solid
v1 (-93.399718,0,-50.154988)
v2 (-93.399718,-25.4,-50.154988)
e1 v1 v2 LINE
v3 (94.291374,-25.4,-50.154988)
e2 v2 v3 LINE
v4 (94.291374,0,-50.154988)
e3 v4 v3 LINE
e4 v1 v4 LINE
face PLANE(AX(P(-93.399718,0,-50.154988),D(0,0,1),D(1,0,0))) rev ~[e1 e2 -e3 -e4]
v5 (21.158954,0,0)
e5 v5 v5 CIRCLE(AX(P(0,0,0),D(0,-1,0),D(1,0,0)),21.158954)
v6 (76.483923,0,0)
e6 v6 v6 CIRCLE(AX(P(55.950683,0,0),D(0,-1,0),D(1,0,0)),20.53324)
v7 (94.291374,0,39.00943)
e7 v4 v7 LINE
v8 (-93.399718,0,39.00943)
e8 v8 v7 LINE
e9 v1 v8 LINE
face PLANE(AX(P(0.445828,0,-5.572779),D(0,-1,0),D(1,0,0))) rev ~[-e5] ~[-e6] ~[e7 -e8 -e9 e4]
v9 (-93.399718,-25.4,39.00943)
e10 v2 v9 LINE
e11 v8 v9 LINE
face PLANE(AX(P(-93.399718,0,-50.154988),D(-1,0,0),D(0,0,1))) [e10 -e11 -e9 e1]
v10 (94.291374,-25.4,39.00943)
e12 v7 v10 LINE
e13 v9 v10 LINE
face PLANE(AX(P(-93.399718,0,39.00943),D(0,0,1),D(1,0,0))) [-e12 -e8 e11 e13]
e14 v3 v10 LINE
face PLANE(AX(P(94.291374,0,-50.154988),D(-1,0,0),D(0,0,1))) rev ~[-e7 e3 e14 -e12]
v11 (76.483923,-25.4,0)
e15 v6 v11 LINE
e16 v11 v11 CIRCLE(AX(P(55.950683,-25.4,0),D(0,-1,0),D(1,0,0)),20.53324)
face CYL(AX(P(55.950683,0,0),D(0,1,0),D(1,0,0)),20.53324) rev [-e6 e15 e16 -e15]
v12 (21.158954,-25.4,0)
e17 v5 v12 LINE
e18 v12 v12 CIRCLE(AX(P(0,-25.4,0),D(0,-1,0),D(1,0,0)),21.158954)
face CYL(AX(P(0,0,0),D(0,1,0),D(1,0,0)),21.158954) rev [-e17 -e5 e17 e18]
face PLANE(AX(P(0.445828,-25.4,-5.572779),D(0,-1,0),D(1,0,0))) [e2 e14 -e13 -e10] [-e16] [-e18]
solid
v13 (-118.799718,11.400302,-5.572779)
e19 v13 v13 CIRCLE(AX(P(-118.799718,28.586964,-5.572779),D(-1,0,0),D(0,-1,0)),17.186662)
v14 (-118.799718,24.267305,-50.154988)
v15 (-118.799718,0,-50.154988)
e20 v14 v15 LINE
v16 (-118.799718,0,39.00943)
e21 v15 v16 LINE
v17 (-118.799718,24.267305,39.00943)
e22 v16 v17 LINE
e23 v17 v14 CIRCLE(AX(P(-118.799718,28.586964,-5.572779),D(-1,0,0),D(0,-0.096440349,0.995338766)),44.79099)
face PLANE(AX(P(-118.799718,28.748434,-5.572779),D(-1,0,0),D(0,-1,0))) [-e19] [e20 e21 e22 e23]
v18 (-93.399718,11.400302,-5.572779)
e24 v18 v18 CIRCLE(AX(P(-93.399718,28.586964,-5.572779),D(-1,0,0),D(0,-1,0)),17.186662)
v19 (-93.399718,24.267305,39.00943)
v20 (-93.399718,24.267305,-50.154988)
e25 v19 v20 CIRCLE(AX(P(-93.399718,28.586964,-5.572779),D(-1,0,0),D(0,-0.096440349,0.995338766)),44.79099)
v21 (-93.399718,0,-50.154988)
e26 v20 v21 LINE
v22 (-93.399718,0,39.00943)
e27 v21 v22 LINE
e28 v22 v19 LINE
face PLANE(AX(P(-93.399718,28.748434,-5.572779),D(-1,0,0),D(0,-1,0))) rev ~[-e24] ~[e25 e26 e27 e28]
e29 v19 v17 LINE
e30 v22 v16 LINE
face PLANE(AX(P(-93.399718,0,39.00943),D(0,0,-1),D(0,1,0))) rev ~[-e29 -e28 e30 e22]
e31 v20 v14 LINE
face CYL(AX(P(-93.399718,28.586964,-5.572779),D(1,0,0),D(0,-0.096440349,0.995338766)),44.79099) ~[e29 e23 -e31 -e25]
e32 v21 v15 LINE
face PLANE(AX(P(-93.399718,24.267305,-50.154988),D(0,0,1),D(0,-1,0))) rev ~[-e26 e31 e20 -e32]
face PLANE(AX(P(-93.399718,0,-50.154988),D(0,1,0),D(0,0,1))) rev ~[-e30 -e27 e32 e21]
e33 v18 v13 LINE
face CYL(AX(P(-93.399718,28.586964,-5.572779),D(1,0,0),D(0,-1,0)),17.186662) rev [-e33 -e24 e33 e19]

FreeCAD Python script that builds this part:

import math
import FreeCAD as App
import Part
import Sketcher
Q = App.Units.Quantity


def add_polygon(sketch, points):
    """Adds a closed chain of lines whose ends are joined by coincident constraints."""
    first, n = sketch.GeometryCount, len(points)
    for a, b in zip(points, points[1:] + points[:1]):
        sketch.addGeometry(Part.LineSegment(App.Vector(*a, 0), App.Vector(*b, 0)), False)
    for i in range(n):
        sketch.addConstraint(Sketcher.Constraint("Coincident", first + i, 2, first + (i + 1) % n, 1))

doc = App.newDocument("Part")
body = doc.addObject("PartDesign::Body", "Body")

sketch1 = body.newObject("Sketcher::SketchObject", "Sketch")
sketch1.AttachmentSupport = (doc.getObject("XZ_Plane"), [""])
sketch1.MapMode = "FlatFace"
add_polygon(sketch1, [(-93, 39), (-93, -50), (94, -50), (94, 39)])
sketch1.addGeometry(Part.Circle(App.Vector(0, 0, 0), App.Vector(0, 0, 1), 21), False)
sketch1.addGeometry(Part.Circle(App.Vector(56, 0, 0), App.Vector(0, 0, 1), 21), False)
sketch1.addConstraint(Sketcher.Constraint("Vertical", 0))
sketch1.addConstraint(Sketcher.Constraint("Horizontal", 1))
sketch1.addConstraint(Sketcher.Constraint("Vertical", 2))
sketch1.addConstraint(Sketcher.Constraint("Horizontal", 3))
sketch1.addConstraint(Sketcher.Constraint("Coincident", 4, 3, -1, 1))
sketch1.addConstraint(Sketcher.Constraint("PointOnObject", 5, 3, -1))
sketch1.addConstraint(Sketcher.Constraint("Diameter", 4, 42.317908))
sketch1.addConstraint(Sketcher.Constraint("Diameter", 5, 41.06648))
sketch1.addConstraint(Sketcher.Constraint("DistanceX", 1, 1, 1, 2, 187.691092))
sketch1.addConstraint(Sketcher.Constraint("DistanceY", 0, 2, 0, 1, 89.164418))
sketch1.addConstraint(Sketcher.Constraint("DistanceX", 0, 2, 5, 3, 149.350401))
sketch1.addConstraint(Sketcher.Constraint("DistanceY", 0, 2, -1, 1, 50.154988))
sketch1.addConstraint(Sketcher.Constraint("DistanceX", -1, 1, 5, 3, 55.950683))
pad1 = body.newObject("PartDesign::Pad", "Pad")
pad1.Profile = sketch1
pad1.Length = Q("1 in")
body2 = doc.addObject("PartDesign::Body", "Body001")

sketch2 = body2.newObject("Sketcher::SketchObject", "Sketch001")
sketch2.AttachmentSupport = (doc.getObject("YZ_Plane001"), [""])
sketch2.MapMode = "FlatFace"
sketch2.AttachmentOffset = App.Placement(App.Vector(0, 0, -93.399718), App.Rotation())
sketch2.addGeometry(Part.LineSegment(App.Vector(0, -50, 0), App.Vector(0, 39, 0)), False)
sketch2.addGeometry(Part.LineSegment(App.Vector(0, 39, 0), App.Vector(24, 39, 0)), False)
sketch2.addGeometry(Part.ArcOfCircle(Part.Circle(App.Vector(29, -6, 0), App.Vector(0, 0, 1), 45), math.radians(-96), math.radians(96)), False)
sketch2.addGeometry(Part.LineSegment(App.Vector(24, -50, 0), App.Vector(0, -50, 0)), False)
sketch2.addGeometry(Part.Circle(App.Vector(29, -6, 0), App.Vector(0, 0, 1), 17), False)
sketch2.addConstraint(Sketcher.Constraint("Coincident", 0, 2, 1, 1))
sketch2.addConstraint(Sketcher.Constraint("Coincident", 1, 2, 2, 2))
sketch2.addConstraint(Sketcher.Constraint("Coincident", 2, 1, 3, 1))
sketch2.addConstraint(Sketcher.Constraint("Coincident", 3, 2, 0, 1))
sketch2.addConstraint(Sketcher.Constraint("Vertical", 0))
sketch2.addConstraint(Sketcher.Constraint("Horizontal", 1))
sketch2.addConstraint(Sketcher.Constraint("Horizontal", 3))
sketch2.addConstraint(Sketcher.Constraint("Coincident", 4, 3, 2, 3))
sketch2.addConstraint(Sketcher.Constraint("PointOnObject", 0, 2, -2))
sketch2.addConstraint(Sketcher.Constraint("Vertical", 1, 2, 2, 1))
sketch2.addConstraint(Sketcher.Constraint("Radius", 2, 44.79099))
sketch2.addConstraint(Sketcher.Constraint("Diameter", 4, 34.373324))
sketch2.addConstraint(Sketcher.Constraint("DistanceY", 0, 1, 0, 2, 89.164418))
sketch2.addConstraint(Sketcher.Constraint("DistanceX", 1, 1, 1, 2, 24.267305))
sketch2.addConstraint(Sketcher.Constraint("DistanceY", 2, 3, -1, 1, 5.572779))
pad2 = body2.newObject("PartDesign::Pad", "Pad001")
pad2.Profile = sketch2
pad2.Length = Q("1 in")
pad2.Reversed = True

doc.recompute()
